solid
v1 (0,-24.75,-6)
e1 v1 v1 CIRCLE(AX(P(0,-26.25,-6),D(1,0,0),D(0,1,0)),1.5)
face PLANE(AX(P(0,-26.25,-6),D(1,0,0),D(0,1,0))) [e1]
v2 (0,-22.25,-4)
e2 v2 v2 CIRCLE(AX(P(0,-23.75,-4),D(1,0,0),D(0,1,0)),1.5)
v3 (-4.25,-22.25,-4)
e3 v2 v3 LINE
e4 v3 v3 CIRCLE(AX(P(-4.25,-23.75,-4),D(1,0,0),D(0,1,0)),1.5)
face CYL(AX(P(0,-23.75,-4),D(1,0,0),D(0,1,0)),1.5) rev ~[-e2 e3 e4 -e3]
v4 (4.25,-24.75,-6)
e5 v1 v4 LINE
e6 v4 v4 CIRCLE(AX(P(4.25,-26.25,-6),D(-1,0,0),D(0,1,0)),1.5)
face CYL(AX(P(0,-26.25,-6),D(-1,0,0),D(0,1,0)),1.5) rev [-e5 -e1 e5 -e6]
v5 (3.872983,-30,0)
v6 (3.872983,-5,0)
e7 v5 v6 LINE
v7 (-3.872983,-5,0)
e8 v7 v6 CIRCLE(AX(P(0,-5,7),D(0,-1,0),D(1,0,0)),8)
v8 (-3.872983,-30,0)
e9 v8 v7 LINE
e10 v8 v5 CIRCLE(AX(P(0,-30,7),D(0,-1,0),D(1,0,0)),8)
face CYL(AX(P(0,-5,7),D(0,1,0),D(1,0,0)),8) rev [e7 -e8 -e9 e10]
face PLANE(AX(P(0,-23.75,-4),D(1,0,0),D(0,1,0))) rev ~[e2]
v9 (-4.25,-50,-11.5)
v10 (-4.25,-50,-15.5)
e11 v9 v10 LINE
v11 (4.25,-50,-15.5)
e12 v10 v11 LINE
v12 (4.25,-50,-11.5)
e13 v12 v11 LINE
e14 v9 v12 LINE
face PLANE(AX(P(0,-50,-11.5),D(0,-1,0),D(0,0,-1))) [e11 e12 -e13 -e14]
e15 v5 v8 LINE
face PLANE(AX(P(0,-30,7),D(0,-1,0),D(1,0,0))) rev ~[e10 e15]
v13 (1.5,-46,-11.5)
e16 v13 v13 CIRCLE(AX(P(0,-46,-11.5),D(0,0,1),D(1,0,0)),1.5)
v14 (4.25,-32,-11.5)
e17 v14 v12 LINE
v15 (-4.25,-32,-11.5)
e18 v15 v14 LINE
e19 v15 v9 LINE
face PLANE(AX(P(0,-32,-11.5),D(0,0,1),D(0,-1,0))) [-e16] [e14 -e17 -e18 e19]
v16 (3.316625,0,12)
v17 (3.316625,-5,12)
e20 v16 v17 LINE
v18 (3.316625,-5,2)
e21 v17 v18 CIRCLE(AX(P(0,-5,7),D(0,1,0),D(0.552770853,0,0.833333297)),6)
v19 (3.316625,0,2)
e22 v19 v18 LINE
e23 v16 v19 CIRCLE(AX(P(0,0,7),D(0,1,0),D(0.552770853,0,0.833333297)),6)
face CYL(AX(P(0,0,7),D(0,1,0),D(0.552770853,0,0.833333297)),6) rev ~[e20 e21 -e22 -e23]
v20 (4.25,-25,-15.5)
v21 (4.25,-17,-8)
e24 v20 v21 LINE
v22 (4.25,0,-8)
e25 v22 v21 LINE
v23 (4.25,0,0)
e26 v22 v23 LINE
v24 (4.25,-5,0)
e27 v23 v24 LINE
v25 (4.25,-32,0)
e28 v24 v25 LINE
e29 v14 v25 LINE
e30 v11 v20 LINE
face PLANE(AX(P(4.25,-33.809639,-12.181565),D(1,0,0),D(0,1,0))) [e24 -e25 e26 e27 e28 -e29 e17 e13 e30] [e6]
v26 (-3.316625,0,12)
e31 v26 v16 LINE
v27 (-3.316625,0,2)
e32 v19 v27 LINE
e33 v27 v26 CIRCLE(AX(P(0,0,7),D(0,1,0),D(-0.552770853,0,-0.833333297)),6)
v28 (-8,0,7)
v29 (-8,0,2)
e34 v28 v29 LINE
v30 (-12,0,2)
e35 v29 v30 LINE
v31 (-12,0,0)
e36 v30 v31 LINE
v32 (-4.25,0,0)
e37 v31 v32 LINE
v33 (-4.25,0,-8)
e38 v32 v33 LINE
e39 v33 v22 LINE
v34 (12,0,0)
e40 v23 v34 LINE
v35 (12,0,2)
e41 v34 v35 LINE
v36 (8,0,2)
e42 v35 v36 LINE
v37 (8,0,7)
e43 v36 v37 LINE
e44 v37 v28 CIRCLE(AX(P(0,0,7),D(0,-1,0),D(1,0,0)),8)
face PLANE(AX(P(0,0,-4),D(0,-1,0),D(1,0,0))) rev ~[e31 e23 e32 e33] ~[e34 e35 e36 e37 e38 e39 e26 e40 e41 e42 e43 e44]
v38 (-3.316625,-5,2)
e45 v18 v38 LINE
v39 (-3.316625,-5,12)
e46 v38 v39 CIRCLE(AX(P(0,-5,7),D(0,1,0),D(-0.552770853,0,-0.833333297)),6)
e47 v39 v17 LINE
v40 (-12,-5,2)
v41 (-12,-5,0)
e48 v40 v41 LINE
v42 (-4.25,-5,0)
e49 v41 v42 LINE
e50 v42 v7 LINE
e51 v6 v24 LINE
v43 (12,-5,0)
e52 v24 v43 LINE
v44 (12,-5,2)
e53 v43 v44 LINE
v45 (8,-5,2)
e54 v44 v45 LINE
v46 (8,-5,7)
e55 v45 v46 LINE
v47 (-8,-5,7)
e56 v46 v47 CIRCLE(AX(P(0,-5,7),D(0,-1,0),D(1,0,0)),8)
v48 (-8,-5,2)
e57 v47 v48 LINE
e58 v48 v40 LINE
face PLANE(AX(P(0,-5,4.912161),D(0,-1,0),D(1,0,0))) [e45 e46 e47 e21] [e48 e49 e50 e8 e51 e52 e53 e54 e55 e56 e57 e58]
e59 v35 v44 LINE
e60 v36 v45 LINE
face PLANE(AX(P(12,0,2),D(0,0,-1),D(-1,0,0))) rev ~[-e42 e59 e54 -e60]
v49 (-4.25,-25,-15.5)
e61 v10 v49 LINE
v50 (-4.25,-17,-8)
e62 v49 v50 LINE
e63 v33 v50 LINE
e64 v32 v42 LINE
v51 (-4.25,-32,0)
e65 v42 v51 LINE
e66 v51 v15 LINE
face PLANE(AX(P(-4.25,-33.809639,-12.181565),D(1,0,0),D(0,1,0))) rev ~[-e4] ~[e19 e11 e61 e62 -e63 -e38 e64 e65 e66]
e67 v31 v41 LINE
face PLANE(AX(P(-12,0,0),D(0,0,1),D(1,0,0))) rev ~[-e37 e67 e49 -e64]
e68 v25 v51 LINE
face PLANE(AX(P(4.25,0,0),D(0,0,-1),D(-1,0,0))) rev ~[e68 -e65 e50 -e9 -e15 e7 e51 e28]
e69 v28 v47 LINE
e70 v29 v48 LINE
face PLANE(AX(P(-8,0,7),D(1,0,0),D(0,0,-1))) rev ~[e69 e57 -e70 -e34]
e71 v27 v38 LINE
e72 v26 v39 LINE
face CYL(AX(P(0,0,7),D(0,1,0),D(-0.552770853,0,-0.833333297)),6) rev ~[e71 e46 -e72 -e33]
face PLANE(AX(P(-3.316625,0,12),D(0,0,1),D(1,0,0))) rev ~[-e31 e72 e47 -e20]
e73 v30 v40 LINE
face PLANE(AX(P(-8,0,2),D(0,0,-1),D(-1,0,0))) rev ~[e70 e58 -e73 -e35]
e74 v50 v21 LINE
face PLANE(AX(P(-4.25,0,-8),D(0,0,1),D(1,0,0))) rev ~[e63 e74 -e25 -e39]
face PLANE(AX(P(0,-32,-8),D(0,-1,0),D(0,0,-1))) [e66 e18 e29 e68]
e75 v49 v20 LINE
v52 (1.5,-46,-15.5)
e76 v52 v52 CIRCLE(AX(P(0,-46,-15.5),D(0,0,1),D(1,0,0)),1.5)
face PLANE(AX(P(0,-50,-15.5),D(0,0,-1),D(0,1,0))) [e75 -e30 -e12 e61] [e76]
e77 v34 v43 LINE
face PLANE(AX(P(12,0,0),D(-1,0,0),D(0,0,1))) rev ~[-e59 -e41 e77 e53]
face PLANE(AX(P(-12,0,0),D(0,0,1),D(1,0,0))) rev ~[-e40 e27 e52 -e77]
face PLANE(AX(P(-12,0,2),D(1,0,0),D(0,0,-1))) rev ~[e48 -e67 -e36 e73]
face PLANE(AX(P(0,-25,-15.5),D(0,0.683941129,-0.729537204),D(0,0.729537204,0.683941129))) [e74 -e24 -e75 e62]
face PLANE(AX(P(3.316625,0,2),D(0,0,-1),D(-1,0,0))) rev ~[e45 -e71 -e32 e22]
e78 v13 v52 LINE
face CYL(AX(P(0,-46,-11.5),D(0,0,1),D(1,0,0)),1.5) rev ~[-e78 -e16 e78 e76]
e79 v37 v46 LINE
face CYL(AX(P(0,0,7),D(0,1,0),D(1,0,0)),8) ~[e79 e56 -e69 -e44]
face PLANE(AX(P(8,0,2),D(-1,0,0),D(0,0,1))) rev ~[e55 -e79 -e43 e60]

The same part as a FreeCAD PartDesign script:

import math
import FreeCAD as App
import Part
import Sketcher
from FreeCAD import Vector
Q = App.Units.Quantity


def add_polygon(sketch, points):
    """Adds a closed chain of lines whose ends are joined by coincident constraints."""
    first, n = sketch.GeometryCount, len(points)
    for a, b in zip(points, points[1:] + points[:1]):
        sketch.addGeometry(Part.LineSegment(App.Vector(*a, 0), App.Vector(*b, 0)), False)
    for i in range(n):
        sketch.addConstraint(Sketcher.Constraint("Coincident", first + i, 2, first + (i + 1) % n, 1))

doc = App.newDocument("Part")
body = doc.addObject("PartDesign::Body", "Body")

# Sketch on XZ plane
sketch1 = body.newObject("Sketcher::SketchObject", "Sketch")
sketch1.AttachmentSupport = (doc.getObject("XZ_Plane"), [""])
sketch1.MapMode = "FlatFace"
sketch1.addGeometry([
    Part.LineSegment(Vector(-8, 7, 0), Vector(-8, 2, 0)),  # 0
    Part.LineSegment(Vector(-8, 2, 0), Vector(-12, 2, 0)),  # 1
    Part.LineSegment(Vector(-12, 2, 0), Vector(-12, 0, 0)),  # 2
    Part.LineSegment(Vector(-12, 0, 0), Vector(12, 0, 0)),  # 3
    Part.LineSegment(Vector(12, 0, 0), Vector(12, 2, 0)),  # 4
    Part.LineSegment(Vector(12, 2, 0), Vector(8, 2, 0)),  # 5
    Part.LineSegment(Vector(8, 2, 0), Vector(8, 7, 0)),  # 6
    Part.ArcOfCircle(Part.Circle(Vector(0, 7, 0), Vector(0, 0, 1), 8), math.radians(0), math.radians(180)),  # 7
    Part.LineSegment(Vector(-3.3, 12, 0), Vector(3.3, 12, 0)),  # 8
    Part.ArcOfCircle(Part.Circle(Vector(0, 7, 0), Vector(0, 0, 1), 6), math.radians(-56), math.radians(56)),  # 9
    Part.LineSegment(Vector(3.3, 2, 0), Vector(-3.3, 2, 0)),  # 10
    Part.ArcOfCircle(Part.Circle(Vector(0, 7, 0), Vector(0, 0, 1), 6), math.radians(124), math.radians(236)),  # 11
], False)
sketch1.addConstraint([
    Sketcher.Constraint("Coincident", 0, 2, 1, 1),
    Sketcher.Constraint("Coincident", 1, 2, 2, 1),
    Sketcher.Constraint("Coincident", 2, 2, 3, 1),
    Sketcher.Constraint("Coincident", 3, 2, 4, 1),
    Sketcher.Constraint("Coincident", 4, 2, 5, 1),
    Sketcher.Constraint("Coincident", 5, 2, 6, 1),
    Sketcher.Constraint("Tangent", 6, 2, 7, 1),
    Sketcher.Constraint("Tangent", 7, 2, 0, 1),
    Sketcher.Constraint("Coincident", 8, 2, 9, 2),
    Sketcher.Constraint("Coincident", 9, 1, 10, 1),
    Sketcher.Constraint("Coincident", 10, 2, 11, 2),
    Sketcher.Constraint("Coincident", 11, 1, 8, 1),
    Sketcher.Constraint("Vertical", 0),
    Sketcher.Constraint("Horizontal", 1),
    Sketcher.Constraint("Vertical", 2),
    Sketcher.Constraint("Horizontal", 3),
    Sketcher.Constraint("Vertical", 4),
    Sketcher.Constraint("Horizontal", 5),
    Sketcher.Constraint("Vertical", 6),
    Sketcher.Constraint("Horizontal", 8),
    Sketcher.Constraint("Horizontal", 10),
    Sketcher.Constraint("Coincident", 9, 3, 7, 3),
    Sketcher.Constraint("Coincident", 11, 3, 7, 3),
    Sketcher.Constraint("Equal", 9, 11),
    Sketcher.Constraint("Symmetric", 2, 2, 3, 2, -1, 1),
    Sketcher.Constraint("Symmetric", 0, 2, 5, 2, -2),
    Sketcher.Constraint("Horizontal", 5, 2, 9, 1),
    Sketcher.Constraint("Vertical", 8, 2, 9, 1),
    Sketcher.Constraint("Radius", 7, Q("8 mm")),
    Sketcher.Constraint("Radius", 9, Q("6 mm")),
    Sketcher.Constraint("DistanceX", 1, 2, 1, 1, Q("4 mm")),
    Sketcher.Constraint("DistanceY", 0, 2, 0, 1, Q("5 mm")),
    Sketcher.Constraint("DistanceY", 2, 2, 2, 1, Q("2 mm")),
])
pad1 = body.newObject("PartDesign::Pad", "Pad")
pad1.Profile = sketch1
pad1.Length = 5

# Sketch on XZ plane
sketch2 = body.newObject("Sketcher::SketchObject", "Sketch001")
sketch2.AttachmentSupport = (doc.getObject("XZ_Plane"), [""])
sketch2.MapMode = "FlatFace"
add_polygon(sketch2, [(-4, 0), (-4, -8), (4, -8), (4, 0)])  # lines 0-3
sketch2.addConstraint([
    Sketcher.Constraint("Vertical", 0),
    Sketcher.Constraint("Horizontal", 1),
    Sketcher.Constraint("Vertical", 2),
    Sketcher.Constraint("Horizontal", 3),
    Sketcher.Constraint("Symmetric", 2, 2, 3, 2, -1, 1),
    Sketcher.Constraint("DistanceY", 0, 2, 0, 1, Q("8 mm")),
    Sketcher.Constraint("DistanceX", 1, 1, 1, 2, Q("8.5 mm")),
])
pad2 = body.newObject("PartDesign::Pad", "Pad001")
pad2.Profile = sketch2
pad2.Length = 32

# Sketch on YZ plane
sketch3 = body.newObject("Sketcher::SketchObject", "Sketch002")
sketch3.AttachmentSupport = (doc.getObject("YZ_Plane"), [""])
sketch3.MapMode = "FlatFace"
sketch3.addGeometry(Part.Circle(Vector(-23.8, -4, 0), Vector(0, 0, 1), 1.5), False)
sketch3.addConstraint([
    Sketcher.Constraint("Diameter", 0, Q("3 mm")),
    Sketcher.Constraint("DistanceY", 0, 3, -1, 1, Q("4 mm")),
    Sketcher.Constraint("DistanceX", 0, 3, -1, 1, Q("23.75 mm")),
])
pocket1 = body.newObject("PartDesign::Pocket", "Pocket")
pocket1.Profile = sketch3
pocket1.Length = 25

# Sketch on YZ plane
sketch4 = body.newObject("Sketcher::SketchObject", "Sketch003")
sketch4.AttachmentSupport = (doc.getObject("YZ_Plane"), [""])
sketch4.MapMode = "FlatFace"
sketch4.addGeometry(Part.Circle(Vector(-26.2, -6, 0), Vector(0, 0, 1), 1.5), False)
sketch4.addConstraint([
    Sketcher.Constraint("Diameter", 0, Q("3 mm")),
    Sketcher.Constraint("DistanceY", 0, 3, -1, 1, Q("6 mm")),
    Sketcher.Constraint("DistanceX", 0, 3, -1, 1, Q("26.25 mm")),
])
pocket2 = body.newObject("PartDesign::Pocket", "Pocket001")
pocket2.Profile = sketch4
pocket2.Length = 25
pocket2.Reversed = True

# Sketch on XZ plane
sketch5 = body.newObject("Sketcher::SketchObject", "Sketch004")
sketch5.AttachmentSupport = (doc.getObject("XZ_Plane"), [""])
sketch5.MapMode = "FlatFace"
sketch5.AttachmentOffset = App.Placement(Vector(0, 0, 5), App.Rotation())
sketch5.addGeometry(Part.Circle(Vector(0, 7, 0), Vector(0, 0, 1), 8), False)
sketch5.addConstraint([
    Sketcher.Constraint("PointOnObject", 0, 3, -2),
    Sketcher.Constraint("Diameter", 0, Q("16 mm")),
    Sketcher.Constraint("DistanceY", -1, 1, 0, 3, Q("7 mm")),
])
pocket3 = body.newObject("PartDesign::Pocket", "Pocket002")
pocket3.Profile = sketch5
pocket3.Length = 25
pocket3.Reversed = True

# Sketch on YZ plane
sketch6 = body.newObject("Sketcher::SketchObject", "Sketch005")
sketch6.AttachmentSupport = (doc.getObject("YZ_Plane"), [""])
sketch6.MapMode = "FlatFace"
add_polygon(sketch6, [(-32, -8), (-32, -11.5), (-50, -11.5), (-50, -15.5), (-25, -15.5), (-17, -8)])  # lines 0-5
sketch6.addConstraint([
    Sketcher.Constraint("Vertical", 0),
    Sketcher.Constraint("Horizontal", 1),
    Sketcher.Constraint("Vertical", 2),
    Sketcher.Constraint("Horizontal", 3),
    Sketcher.Constraint("Horizontal", 5),
    Sketcher.Constraint("DistanceX", 1, 2, 1, 1, Q("18 mm")),
    Sketcher.Constraint("DistanceX", 3, 1, 3, 2, Q("25 mm")),
    Sketcher.Constraint("DistanceX", 5, 2, 5, 1, Q("15 mm")),
    Sketcher.Constraint("DistanceY", 2, 2, 2, 1, Q("4 mm")),
    Sketcher.Constraint("DistanceY", 0, 2, 0, 1, Q("3.5 mm")),
    Sketcher.Constraint("DistanceX", 0, 2, -1, 1, Q("32 mm")),
    Sketcher.Constraint("DistanceY", 4, 2, -1, 1, Q("8 mm")),
])
pad3 = body.newObject("PartDesign::Pad", "Pad002")
pad3.Profile = sketch6
pad3.Type = "TwoLengths"
pad3.Length = 4.25
pad3.Length2 = 4.25

# Sketch on XY plane
sketch7 = body.newObject("Sketcher::SketchObject", "Sketch006")
sketch7.AttachmentSupport = (doc.getObject("XY_Plane"), [""])
sketch7.MapMode = "FlatFace"
sketch7.AttachmentOffset = App.Placement(Vector(0, 0, -11.5), App.Rotation())
sketch7.addGeometry(Part.Circle(Vector(0, -46, 0), Vector(0, 0, 1), 1.5), False)
sketch7.addConstraint([
    Sketcher.Constraint("PointOnObject", 0, 3, -2),
    Sketcher.Constraint("Diameter", 0, Q("3 mm")),
    Sketcher.Constraint("DistanceY", 0, 3, -1, 1, Q("46 mm")),
])
pocket4 = body.newObject("PartDesign::Pocket", "Pocket003")
pocket4.Profile = sketch7
pocket4.Length = 25

doc.recompute()
